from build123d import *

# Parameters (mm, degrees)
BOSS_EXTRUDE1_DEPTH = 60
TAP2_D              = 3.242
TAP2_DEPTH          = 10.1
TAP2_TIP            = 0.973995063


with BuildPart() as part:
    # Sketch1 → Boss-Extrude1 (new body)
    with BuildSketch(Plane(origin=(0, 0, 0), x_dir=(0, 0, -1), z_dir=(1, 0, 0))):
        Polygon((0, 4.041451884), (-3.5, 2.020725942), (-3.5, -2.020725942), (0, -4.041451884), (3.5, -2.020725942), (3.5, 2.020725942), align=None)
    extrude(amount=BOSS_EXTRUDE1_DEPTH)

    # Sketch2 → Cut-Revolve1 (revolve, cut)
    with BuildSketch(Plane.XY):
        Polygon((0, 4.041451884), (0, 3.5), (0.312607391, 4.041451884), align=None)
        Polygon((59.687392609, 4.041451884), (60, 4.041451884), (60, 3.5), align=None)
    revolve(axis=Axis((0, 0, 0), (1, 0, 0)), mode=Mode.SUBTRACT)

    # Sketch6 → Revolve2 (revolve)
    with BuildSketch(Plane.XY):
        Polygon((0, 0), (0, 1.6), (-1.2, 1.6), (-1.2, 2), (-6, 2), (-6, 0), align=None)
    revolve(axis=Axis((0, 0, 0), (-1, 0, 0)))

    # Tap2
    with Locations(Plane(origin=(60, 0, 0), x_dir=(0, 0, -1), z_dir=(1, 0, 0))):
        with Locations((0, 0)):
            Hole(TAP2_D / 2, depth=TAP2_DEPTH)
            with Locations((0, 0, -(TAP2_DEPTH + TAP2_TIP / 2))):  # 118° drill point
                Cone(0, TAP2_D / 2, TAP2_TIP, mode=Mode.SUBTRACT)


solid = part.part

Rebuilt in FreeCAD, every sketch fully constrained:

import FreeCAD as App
import Part
import Sketcher
from FreeCAD import Vector
Q = App.Units.Quantity


def add_polygon(sketch, points):
    """Adds a closed chain of lines whose ends are joined by coincident constraints."""
    first, n = sketch.GeometryCount, len(points)
    for a, b in zip(points, points[1:] + points[:1]):
        sketch.addGeometry(Part.LineSegment(App.Vector(*a, 0), App.Vector(*b, 0)), False)
    for i in range(n):
        sketch.addConstraint(Sketcher.Constraint("Coincident", first + i, 2, first + (i + 1) % n, 1))

doc = App.newDocument("Part")
params = doc.addObject("Spreadsheet::Sheet", "Params")
for row, (alias, value) in enumerate([
    ("pad1_length", "60 mm"),
    ("groove_angle", "360 deg"),
    ("sketch3_width", "6 mm"),
    ("sketch3_height", "2 mm"),
    ("sketch3_width2", "1.2 mm"),
    ("sketch3_height2", "1.6 mm"),
    ("revolution_angle", "360 deg"),
    ("hole_diameter", "3.242 mm"),
    ("hole_depth", "10.1 mm"),
], start=1):
    params.set(f"A{row}", alias)
    params.set(f"B{row}", "=" + value)
    params.setAlias(f"B{row}", alias)

body = doc.addObject("PartDesign::Body", "Body")

# Sketch on YZ plane
sketch1 = doc.addObject("Sketcher::SketchObject", "Sketch")
body.addObject(sketch1)
sketch1.AttachmentSupport = (doc.YZ_Plane, [""])
sketch1.MapMode = "FlatFace"
add_polygon(sketch1, [(4.041452, 0), (2.020726, 3.5), (-2.020726, 3.5), (-4.041452, 0), (-2.020726, -3.5), (2.020726, -3.5)])  # lines 0-5
sketch1.addConstraint(Sketcher.Constraint("Horizontal", 1))
sketch1.addConstraint(Sketcher.Constraint("Horizontal", 4))
sketch1.addConstraint(Sketcher.Constraint("Symmetric", 0, 2, 3, 2, -1, 1))
sketch1.addConstraint(Sketcher.Constraint("Symmetric", 2, 2, 5, 2, -1, 1))
sketch1.addConstraint(Sketcher.Constraint("PointOnObject", 2, 2, -1))
sketch1.addConstraint(Sketcher.Constraint("Parallel", 2, 5))
sketch1.addConstraint(Sketcher.Constraint("Vertical", 1, 2, 3, 2))
sketch1.addConstraint(Sketcher.Constraint("Angle", 0, Q("120 deg")))
sketch1.addConstraint(Sketcher.Constraint("DistanceY", 3, 2, 1, 2, Q("7 mm")))
sketch1.addConstraint(Sketcher.Constraint("DistanceX", 1, 2, 1, 1, Q("4.041452 mm")))
pad1 = doc.addObject("PartDesign::Pad", "Pad")
body.addObject(pad1)
pad1.Profile = sketch1
pad1.setExpression("Length", "Params.pad1_length")

# Sketch on XY plane
sketch2 = doc.addObject("Sketcher::SketchObject", "Sketch001")
body.addObject(sketch2)
sketch2.AttachmentSupport = (doc.XY_Plane, [""])
sketch2.MapMode = "FlatFace"
add_polygon(sketch2, [(0, 4.041452), (0, 3.5), (0.312607, 4.041452)])  # lines 0-2
add_polygon(sketch2, [(60, 4.041452), (59.687393, 4.041452), (60, 3.5)])  # lines 3-5
sketch2.addConstraint(Sketcher.Constraint("Vertical", 0))
sketch2.addConstraint(Sketcher.Constraint("Horizontal", 2))
sketch2.addConstraint(Sketcher.Constraint("Horizontal", 3))
sketch2.addConstraint(Sketcher.Constraint("Vertical", 5))
sketch2.addConstraint(Sketcher.Constraint("PointOnObject", 0, 2, -2))
sketch2.addConstraint(Sketcher.Constraint("Horizontal", 2, 2, 3, 2))
sketch2.addConstraint(Sketcher.Constraint("Horizontal", 0, 2, 4, 2))
sketch2.addConstraint(Sketcher.Constraint("Equal", 2, 3))
sketch2.addConstraint(Sketcher.Constraint("Angle", 1, Q("60 deg")))
sketch2.addConstraint(Sketcher.Constraint("DistanceX", -1, 1, 4, 2, Q("60 mm")))
sketch2.addConstraint(Sketcher.Constraint("DistanceY", -1, 1, 0, 2, Q("3.5 mm")))
sketch2.addConstraint(Sketcher.Constraint("DistanceY", 0, 2, 0, 1, Q("0.541452 mm")))
groove = doc.addObject("PartDesign::Groove", "Groove")
body.addObject(groove)
groove.Profile = sketch2
groove.ReferenceAxis = (sketch2, ["H_Axis"])
groove.setExpression("Angle", "Params.groove_angle")

# Sketch on XY plane
sketch3 = doc.addObject("Sketcher::SketchObject", "Sketch002")
body.addObject(sketch3)
sketch3.AttachmentSupport = (doc.XY_Plane, [""])
sketch3.MapMode = "FlatFace"
add_polygon(sketch3, [(0, 0), (0, 1.6), (-1.2, 1.6), (-1.2, 2), (-6, 2), (-6, 0)])  # lines 0-5
sketch3.addConstraint(Sketcher.Constraint("Vertical", 0))
sketch3.addConstraint(Sketcher.Constraint("Horizontal", 1))
sketch3.addConstraint(Sketcher.Constraint("Vertical", 2))
sketch3.addConstraint(Sketcher.Constraint("Horizontal", 3))
sketch3.addConstraint(Sketcher.Constraint("Vertical", 4))
sketch3.addConstraint(Sketcher.Constraint("Horizontal", 5))
sketch3.addConstraint(Sketcher.Constraint("Coincident", 5, 2, -1, 1))
sketch3.addConstraint(Sketcher.Constraint("DistanceX", 5, 1, 5, 2, Q("6 mm")))
sketch3.addConstraint(Sketcher.Constraint("DistanceY", 4, 2, 4, 1, Q("2 mm")))
sketch3.addConstraint(Sketcher.Constraint("DistanceX", 1, 2, 1, 1, Q("1.2 mm")))
sketch3.addConstraint(Sketcher.Constraint("DistanceY", 0, 1, 0, 2, Q("1.6 mm")))
sketch3.setExpression("Constraints[13]", "Params.sketch3_width")
sketch3.setExpression("Constraints[14]", "Params.sketch3_height")
sketch3.setExpression("Constraints[15]", "Params.sketch3_width2")
sketch3.setExpression("Constraints[16]", "Params.sketch3_height2")
revolution = doc.addObject("PartDesign::Revolution", "Revolution")
body.addObject(revolution)
revolution.Profile = sketch3
revolution.ReferenceAxis = (sketch3, ["H_Axis"])
revolution.setExpression("Angle", "Params.revolution_angle")

# Sketch on YZ plane
sketch4 = doc.addObject("Sketcher::SketchObject", "Sketch003")
body.addObject(sketch4)
sketch4.AttachmentSupport = (doc.YZ_Plane, [""])
sketch4.MapMode = "FlatFace"
sketch4.AttachmentOffset = App.Placement(Vector(0, 0, 60), App.Rotation())
sketch4.addGeometry(Part.Circle(Vector(0, 0, 0), Vector(0, 0, 1), 1.621), False)
sketch4.addConstraint(Sketcher.Constraint("Coincident", 0, 3, -1, 1))
sketch4.addConstraint(Sketcher.Constraint("Diameter", 0, Q("3.242 mm")))
doc.recompute()
hole = doc.addObject("PartDesign::Hole", "Hole")
body.addObject(hole)
hole.Profile = sketch4
hole.ThreadType = "None"
hole.setExpression("Diameter", "Params.hole_diameter")
hole.DepthType = "Dimension"
hole.setExpression("Depth", "Params.hole_depth")
hole.DrillPoint = "Angled"
hole.DrillPointAngle = 118

doc.recompute()
